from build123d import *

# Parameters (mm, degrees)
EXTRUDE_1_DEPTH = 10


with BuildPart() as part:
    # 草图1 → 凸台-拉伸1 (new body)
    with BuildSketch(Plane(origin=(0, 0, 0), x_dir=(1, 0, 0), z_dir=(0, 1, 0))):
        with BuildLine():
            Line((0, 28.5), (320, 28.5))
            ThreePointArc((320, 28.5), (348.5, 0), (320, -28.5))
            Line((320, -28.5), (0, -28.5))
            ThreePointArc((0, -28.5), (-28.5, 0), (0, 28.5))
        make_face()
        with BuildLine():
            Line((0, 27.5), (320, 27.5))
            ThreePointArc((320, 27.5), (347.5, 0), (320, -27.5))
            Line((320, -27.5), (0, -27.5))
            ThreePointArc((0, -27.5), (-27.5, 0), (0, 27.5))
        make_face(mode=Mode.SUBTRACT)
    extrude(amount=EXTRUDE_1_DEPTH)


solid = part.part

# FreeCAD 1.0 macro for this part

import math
import FreeCAD as App
import Part
import Sketcher

doc = App.newDocument("Part")
body = doc.addObject("PartDesign::Body", "Body")

# Sketch on XZ plane
sketch1 = body.newObject("Sketcher::SketchObject", "Sketch")
sketch1.AttachmentSupport = (doc.getObject("XZ_Plane"), [""])
sketch1.MapMode = "FlatFace"
sketch1.addGeometry([
    Part.LineSegment(App.Vector(320, -28.5, 0), App.Vector(0, -28.5, 0)),  # 0
    Part.ArcOfCircle(Part.Circle(App.Vector(0, 0, 0), App.Vector(0, 0, 1), 28.5), math.radians(90), math.radians(270)),  # 1
    Part.LineSegment(App.Vector(0, 28.5, 0), App.Vector(320, 28.5, 0)),  # 2
    Part.ArcOfCircle(Part.Circle(App.Vector(320, 0, 0), App.Vector(0, 0, 1), 28.5), math.radians(-90), math.radians(90)),  # 3
    Part.LineSegment(App.Vector(0, -27.5, 0), App.Vector(320, -27.5, 0)),  # 4
    Part.ArcOfCircle(Part.Circle(App.Vector(320, 0, 0), App.Vector(0, 0, 1), 27.5), math.radians(-90), math.radians(90)),  # 5
    Part.LineSegment(App.Vector(320, 27.5, 0), App.Vector(0, 27.5, 0)),  # 6
    Part.ArcOfCircle(Part.Circle(App.Vector(0, 0, 0), App.Vector(0, 0, 1), 27.5), math.radians(90), math.radians(270)),  # 7
], False)
sketch1.addConstraint([
    Sketcher.Constraint("Tangent", 0, 2, 1, 2),
    Sketcher.Constraint("Tangent", 1, 1, 2, 1),
    Sketcher.Constraint("Tangent", 2, 2, 3, 2),
    Sketcher.Constraint("Tangent", 3, 1, 0, 1),
    Sketcher.Constraint("Tangent", 4, 2, 5, 1),
    Sketcher.Constraint("Tangent", 5, 2, 6, 1),
    Sketcher.Constraint("Tangent", 6, 2, 7, 1),
    Sketcher.Constraint("Tangent", 7, 2, 4, 1),
    Sketcher.Constraint("Horizontal", 0),
    Sketcher.Constraint("Horizontal", 2),
    Sketcher.Constraint("Horizontal", 4),
    Sketcher.Constraint("Horizontal", 6),
    Sketcher.Constraint("Coincident", 1, 3, -1, 1),
    Sketcher.Constraint("Coincident", 7, 3, -1, 1),
    Sketcher.Constraint("Vertical", 5, 3, 2, 2),
    Sketcher.Constraint("Radius", 1, 28.5),
    Sketcher.Constraint("Radius", 5, 27.5),
    Sketcher.Constraint("DistanceX", 0, 2, 0, 1, 320.0),
])
pad1 = body.newObject("PartDesign::Pad", "Pad")
pad1.Profile = sketch1
pad1.Length = 10
pad1.Reversed = True

doc.recompute()
